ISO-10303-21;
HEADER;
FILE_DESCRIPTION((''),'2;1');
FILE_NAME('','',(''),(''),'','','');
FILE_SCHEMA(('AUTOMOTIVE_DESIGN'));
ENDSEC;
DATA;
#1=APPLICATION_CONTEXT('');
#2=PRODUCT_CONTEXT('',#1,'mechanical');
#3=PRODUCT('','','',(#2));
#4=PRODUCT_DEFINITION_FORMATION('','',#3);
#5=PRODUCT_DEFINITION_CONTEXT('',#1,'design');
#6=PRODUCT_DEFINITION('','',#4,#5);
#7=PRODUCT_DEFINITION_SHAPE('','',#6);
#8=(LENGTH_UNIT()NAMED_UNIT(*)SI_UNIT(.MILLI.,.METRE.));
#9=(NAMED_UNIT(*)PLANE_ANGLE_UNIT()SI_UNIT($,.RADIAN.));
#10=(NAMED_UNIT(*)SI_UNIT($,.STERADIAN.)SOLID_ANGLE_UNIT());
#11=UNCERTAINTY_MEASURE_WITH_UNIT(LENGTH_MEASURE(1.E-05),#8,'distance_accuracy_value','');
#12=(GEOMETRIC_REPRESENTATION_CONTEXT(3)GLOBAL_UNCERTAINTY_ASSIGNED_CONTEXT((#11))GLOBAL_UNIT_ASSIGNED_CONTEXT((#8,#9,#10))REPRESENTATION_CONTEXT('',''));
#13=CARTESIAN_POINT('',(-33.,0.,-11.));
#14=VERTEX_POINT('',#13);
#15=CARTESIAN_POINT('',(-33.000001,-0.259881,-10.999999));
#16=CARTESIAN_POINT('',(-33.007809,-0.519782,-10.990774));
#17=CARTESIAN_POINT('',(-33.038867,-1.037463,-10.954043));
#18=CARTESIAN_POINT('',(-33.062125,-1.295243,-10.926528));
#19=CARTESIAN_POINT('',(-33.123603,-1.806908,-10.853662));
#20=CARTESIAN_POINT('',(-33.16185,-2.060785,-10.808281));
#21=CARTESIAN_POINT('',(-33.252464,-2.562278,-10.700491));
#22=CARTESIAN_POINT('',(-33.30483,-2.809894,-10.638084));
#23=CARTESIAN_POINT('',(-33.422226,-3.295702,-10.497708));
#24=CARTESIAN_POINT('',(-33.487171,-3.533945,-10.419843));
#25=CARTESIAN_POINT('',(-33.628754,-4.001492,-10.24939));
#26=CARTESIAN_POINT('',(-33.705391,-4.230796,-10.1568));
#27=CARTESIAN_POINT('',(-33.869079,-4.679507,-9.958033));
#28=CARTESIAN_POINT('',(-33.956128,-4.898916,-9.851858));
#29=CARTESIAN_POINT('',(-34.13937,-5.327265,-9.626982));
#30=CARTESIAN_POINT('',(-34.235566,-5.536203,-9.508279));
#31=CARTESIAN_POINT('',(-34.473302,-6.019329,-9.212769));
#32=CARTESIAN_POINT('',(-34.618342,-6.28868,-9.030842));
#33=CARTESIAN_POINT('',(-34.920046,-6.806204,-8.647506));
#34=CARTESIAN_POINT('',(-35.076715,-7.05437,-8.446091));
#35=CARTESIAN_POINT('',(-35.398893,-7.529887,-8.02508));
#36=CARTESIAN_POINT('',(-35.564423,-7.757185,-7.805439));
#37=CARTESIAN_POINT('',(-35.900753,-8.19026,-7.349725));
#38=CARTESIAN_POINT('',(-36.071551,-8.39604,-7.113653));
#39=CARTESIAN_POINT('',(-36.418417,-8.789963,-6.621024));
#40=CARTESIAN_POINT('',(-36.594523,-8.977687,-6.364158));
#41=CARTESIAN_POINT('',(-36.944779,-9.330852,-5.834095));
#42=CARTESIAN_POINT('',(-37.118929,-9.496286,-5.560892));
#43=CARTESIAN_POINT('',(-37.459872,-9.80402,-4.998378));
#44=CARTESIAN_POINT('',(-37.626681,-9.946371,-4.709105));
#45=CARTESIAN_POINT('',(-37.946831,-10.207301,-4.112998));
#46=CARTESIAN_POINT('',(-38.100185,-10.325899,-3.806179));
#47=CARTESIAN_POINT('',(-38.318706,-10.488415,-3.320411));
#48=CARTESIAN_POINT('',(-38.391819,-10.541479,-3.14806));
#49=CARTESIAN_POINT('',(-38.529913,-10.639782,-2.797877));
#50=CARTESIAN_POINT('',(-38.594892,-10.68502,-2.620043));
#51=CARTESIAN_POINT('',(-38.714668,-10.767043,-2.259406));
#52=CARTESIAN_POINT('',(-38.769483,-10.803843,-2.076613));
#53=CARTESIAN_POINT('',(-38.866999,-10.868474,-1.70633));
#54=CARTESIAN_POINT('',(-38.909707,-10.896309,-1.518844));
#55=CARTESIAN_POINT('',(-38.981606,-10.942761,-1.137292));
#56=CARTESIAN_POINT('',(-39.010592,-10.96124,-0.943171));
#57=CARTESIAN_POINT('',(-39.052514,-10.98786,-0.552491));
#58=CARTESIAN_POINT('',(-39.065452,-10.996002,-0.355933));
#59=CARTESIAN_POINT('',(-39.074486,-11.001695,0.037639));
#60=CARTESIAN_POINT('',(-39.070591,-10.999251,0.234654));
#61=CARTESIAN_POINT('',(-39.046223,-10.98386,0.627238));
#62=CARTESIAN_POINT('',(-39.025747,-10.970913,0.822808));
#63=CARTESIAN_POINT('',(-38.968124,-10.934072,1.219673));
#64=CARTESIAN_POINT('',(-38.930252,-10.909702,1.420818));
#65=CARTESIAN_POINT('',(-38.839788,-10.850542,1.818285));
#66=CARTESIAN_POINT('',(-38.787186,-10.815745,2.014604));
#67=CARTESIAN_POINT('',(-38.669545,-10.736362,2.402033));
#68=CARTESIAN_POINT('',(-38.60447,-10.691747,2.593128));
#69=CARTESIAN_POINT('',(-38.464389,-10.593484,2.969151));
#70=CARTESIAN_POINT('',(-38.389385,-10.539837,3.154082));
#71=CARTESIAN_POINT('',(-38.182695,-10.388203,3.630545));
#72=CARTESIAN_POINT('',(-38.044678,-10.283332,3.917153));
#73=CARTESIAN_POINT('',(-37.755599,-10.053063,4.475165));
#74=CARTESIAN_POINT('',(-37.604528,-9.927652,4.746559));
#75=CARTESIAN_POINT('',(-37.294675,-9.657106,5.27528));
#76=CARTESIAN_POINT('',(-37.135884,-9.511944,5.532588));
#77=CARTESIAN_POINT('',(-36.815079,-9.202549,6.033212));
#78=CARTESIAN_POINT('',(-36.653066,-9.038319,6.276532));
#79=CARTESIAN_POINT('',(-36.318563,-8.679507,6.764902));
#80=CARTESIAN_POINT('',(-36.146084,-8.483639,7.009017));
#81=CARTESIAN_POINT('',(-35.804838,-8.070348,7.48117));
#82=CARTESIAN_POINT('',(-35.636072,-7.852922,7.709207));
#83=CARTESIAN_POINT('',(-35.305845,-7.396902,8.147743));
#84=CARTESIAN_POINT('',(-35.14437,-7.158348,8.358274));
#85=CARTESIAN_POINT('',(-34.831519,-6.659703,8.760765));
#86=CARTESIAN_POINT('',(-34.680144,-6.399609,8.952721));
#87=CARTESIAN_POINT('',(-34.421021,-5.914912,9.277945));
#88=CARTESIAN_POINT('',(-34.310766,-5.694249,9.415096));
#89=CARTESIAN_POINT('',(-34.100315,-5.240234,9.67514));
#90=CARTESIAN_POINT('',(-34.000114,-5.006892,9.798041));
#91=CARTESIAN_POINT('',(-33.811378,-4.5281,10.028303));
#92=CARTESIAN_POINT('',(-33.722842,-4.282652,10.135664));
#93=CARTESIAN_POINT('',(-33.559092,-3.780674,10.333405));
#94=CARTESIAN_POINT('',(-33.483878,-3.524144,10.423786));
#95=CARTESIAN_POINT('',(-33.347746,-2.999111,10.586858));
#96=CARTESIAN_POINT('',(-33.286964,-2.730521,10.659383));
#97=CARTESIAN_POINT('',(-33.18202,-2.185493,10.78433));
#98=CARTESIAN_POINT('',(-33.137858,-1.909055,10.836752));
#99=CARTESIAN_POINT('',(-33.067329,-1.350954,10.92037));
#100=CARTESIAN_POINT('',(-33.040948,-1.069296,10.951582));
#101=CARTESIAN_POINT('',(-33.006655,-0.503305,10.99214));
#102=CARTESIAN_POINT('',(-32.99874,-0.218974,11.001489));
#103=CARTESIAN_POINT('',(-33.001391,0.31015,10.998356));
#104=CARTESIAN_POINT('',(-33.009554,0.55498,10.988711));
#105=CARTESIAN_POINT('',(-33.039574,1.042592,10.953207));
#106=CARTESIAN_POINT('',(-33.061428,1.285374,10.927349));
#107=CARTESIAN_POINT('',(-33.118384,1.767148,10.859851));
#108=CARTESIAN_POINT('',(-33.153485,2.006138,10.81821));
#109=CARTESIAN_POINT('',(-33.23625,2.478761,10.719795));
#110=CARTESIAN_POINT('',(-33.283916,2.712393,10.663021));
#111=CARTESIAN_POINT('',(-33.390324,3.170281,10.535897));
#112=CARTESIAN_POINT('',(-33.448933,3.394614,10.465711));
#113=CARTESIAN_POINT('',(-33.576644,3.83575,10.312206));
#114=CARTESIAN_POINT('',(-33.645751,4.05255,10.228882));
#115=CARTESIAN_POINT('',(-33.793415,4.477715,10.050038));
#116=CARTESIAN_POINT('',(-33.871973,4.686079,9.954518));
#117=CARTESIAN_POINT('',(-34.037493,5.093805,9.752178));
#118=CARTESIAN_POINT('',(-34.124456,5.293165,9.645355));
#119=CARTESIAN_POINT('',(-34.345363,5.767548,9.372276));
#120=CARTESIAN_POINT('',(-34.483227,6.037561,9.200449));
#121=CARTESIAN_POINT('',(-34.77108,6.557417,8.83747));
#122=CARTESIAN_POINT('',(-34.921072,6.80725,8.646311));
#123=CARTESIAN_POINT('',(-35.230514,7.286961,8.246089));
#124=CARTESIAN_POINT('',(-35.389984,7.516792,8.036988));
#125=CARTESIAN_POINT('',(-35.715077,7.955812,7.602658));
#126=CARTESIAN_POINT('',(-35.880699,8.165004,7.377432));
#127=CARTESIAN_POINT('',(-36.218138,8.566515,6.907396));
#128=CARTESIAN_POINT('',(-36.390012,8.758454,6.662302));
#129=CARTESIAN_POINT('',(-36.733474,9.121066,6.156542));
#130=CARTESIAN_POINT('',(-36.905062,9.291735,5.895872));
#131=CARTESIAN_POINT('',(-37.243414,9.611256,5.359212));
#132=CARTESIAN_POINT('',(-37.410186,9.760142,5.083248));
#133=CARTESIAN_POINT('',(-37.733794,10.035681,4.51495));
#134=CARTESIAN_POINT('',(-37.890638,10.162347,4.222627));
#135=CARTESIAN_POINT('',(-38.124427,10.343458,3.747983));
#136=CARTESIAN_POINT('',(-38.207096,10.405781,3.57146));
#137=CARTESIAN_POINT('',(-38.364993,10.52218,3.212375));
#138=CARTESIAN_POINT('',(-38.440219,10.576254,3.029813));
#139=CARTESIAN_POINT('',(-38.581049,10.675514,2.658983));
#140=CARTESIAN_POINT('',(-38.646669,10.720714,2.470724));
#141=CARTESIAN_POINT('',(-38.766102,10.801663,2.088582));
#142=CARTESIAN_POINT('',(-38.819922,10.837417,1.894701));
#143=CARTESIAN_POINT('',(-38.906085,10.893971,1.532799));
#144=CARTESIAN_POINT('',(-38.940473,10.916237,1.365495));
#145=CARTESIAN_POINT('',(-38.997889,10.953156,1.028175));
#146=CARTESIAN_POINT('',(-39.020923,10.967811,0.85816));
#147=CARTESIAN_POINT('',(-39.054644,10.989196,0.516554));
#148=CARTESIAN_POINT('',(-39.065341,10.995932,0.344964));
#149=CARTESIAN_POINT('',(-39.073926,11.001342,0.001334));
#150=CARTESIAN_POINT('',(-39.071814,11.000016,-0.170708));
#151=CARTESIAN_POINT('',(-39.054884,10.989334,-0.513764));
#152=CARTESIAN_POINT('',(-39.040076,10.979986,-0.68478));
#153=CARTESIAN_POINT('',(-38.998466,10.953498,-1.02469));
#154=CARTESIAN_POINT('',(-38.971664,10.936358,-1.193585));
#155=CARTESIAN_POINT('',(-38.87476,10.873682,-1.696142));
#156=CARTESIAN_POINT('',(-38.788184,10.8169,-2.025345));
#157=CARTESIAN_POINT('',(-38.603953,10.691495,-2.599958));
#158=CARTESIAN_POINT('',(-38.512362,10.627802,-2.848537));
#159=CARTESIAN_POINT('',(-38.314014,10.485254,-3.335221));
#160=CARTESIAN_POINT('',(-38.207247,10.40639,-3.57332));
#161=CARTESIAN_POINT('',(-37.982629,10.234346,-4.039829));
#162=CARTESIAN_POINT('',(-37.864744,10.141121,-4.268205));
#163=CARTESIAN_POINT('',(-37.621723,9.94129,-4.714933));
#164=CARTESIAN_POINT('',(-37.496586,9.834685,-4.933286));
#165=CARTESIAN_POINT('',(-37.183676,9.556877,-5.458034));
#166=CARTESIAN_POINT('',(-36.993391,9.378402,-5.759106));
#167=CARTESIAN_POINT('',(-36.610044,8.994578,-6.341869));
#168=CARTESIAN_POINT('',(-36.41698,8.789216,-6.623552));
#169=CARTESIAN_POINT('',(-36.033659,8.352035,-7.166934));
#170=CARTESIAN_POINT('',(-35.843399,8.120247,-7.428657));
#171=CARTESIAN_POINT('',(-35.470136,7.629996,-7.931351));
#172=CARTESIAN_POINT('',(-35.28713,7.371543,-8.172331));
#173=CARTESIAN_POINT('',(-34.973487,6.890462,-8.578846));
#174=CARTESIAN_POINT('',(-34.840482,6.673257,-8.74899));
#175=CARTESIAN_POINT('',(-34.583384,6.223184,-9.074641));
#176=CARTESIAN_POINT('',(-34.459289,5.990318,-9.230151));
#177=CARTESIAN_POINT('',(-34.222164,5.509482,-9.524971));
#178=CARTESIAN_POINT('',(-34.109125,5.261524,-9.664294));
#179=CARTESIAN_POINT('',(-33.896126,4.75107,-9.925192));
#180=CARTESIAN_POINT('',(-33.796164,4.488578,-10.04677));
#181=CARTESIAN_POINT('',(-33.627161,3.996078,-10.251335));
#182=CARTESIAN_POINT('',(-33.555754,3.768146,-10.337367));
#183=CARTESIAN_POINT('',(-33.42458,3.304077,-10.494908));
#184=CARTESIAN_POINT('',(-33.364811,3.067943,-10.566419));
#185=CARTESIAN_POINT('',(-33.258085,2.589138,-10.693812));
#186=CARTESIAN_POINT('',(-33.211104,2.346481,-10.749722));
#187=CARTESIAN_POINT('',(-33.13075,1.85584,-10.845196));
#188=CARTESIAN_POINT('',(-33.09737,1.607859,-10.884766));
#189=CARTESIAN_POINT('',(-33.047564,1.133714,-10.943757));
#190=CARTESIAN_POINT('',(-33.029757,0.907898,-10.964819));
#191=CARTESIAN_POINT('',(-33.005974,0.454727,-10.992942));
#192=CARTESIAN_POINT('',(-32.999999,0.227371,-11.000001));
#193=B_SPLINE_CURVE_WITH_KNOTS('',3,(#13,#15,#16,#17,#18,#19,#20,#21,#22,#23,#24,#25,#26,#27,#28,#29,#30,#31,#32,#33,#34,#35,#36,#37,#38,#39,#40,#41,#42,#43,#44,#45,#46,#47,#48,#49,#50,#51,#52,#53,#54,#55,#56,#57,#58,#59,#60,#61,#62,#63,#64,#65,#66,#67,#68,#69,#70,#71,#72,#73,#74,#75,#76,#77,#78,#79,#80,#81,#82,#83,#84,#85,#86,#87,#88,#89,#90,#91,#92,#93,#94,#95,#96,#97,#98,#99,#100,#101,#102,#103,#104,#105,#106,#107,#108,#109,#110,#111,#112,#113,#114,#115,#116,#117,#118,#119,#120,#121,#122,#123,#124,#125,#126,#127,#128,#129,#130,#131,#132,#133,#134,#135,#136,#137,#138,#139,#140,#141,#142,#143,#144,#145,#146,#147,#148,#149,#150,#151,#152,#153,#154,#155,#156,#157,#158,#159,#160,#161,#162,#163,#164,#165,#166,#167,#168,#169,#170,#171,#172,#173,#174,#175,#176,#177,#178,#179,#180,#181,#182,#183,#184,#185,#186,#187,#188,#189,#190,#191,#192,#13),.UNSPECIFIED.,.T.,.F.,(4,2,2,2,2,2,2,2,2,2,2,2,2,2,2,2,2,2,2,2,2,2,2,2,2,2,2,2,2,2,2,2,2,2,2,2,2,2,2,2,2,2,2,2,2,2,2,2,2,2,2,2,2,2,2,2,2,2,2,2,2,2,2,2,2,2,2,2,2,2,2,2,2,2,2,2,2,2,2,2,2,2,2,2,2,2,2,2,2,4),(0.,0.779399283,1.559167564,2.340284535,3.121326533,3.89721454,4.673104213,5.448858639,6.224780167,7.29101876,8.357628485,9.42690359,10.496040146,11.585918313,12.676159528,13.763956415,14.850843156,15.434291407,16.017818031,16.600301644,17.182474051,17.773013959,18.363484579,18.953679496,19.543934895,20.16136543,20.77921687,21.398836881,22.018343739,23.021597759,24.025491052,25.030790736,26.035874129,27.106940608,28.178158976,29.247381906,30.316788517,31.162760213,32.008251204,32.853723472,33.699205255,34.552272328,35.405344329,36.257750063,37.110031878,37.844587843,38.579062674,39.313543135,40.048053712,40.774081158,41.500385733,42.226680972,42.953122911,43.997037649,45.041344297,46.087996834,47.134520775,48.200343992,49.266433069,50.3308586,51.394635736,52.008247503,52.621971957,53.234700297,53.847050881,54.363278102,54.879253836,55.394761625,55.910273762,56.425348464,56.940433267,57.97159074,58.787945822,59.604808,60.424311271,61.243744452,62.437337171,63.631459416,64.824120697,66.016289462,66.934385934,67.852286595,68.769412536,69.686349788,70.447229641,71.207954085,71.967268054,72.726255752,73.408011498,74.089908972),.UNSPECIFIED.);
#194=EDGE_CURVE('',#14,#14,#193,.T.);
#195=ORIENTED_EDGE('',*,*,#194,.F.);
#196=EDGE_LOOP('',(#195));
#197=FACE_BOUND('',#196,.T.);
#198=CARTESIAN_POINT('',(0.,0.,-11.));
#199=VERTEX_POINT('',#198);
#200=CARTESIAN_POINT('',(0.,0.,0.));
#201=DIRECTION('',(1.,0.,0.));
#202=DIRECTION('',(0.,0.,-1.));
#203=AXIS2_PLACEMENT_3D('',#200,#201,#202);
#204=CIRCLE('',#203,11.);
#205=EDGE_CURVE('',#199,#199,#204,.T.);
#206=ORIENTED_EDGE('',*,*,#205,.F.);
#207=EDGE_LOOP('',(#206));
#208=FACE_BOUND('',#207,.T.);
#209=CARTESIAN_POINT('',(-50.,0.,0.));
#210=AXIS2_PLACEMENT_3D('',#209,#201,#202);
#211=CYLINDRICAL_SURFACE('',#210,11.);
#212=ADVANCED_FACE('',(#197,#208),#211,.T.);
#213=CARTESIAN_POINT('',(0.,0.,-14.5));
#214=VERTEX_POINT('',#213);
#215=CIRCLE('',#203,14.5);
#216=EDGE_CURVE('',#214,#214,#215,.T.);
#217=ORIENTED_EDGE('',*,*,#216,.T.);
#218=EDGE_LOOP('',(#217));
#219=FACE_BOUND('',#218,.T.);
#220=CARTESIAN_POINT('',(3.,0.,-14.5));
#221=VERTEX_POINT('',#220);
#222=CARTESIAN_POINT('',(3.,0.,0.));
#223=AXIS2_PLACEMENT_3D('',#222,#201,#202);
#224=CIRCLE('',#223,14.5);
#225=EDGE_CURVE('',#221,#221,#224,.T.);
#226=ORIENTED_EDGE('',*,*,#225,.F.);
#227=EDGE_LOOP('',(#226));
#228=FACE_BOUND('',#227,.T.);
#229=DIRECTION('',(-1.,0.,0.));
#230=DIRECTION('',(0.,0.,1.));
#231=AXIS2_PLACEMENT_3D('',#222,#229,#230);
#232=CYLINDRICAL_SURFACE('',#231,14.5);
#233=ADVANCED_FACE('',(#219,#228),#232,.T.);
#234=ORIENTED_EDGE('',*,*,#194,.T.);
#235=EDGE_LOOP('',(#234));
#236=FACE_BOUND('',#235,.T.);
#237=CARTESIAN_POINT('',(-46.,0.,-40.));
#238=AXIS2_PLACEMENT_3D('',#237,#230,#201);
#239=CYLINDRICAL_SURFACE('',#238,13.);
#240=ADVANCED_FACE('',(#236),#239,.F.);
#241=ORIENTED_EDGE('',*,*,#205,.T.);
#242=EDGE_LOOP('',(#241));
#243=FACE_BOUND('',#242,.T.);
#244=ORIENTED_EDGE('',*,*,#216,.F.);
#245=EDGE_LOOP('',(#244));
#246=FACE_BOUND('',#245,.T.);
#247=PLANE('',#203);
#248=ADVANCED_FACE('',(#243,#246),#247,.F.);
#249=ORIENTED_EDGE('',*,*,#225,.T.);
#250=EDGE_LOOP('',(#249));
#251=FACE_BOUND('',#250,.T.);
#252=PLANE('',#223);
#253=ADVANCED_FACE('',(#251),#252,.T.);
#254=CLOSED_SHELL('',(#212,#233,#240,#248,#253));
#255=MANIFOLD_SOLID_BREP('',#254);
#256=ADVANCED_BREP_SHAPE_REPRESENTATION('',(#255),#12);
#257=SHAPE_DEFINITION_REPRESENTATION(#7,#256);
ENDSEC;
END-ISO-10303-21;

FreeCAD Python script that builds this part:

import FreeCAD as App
import Part
import Sketcher

V = App.Vector
Q = App.Units.Quantity

doc = App.newDocument("Part")
body = doc.addObject("PartDesign::Body", "Body")

# Sketch on YZ plane
sketch1 = body.newObject("Sketcher::SketchObject", "Sketch")
sketch1.AttachmentSupport = (doc.getObject("YZ_Plane"), [""])
sketch1.MapMode = "FlatFace"
sketch1.addGeometry(Part.Circle(V(0, 0, 0), V(0, 0, 1), 11), False)
sketch1.addConstraint([
    Sketcher.Constraint("Coincident", 0, 3, -1, 1),
    Sketcher.Constraint("Diameter", 0, Q("22 mm")),
])
pad1 = body.newObject("PartDesign::Pad", "Pad")
pad1.Profile = sketch1
pad1.Length = 50
pad1.Reversed = True

# Sketch on XY plane
sketch2 = body.newObject("Sketcher::SketchObject", "Sketch001")
sketch2.AttachmentSupport = (doc.getObject("XY_Plane"), [""])
sketch2.MapMode = "FlatFace"
sketch2.addGeometry(Part.Circle(V(-46, 0, 0), V(0, 0, 1), 13), False)
sketch2.addConstraint([
    Sketcher.Constraint("PointOnObject", 0, 3, -1),
    Sketcher.Constraint("Diameter", 0, Q("26 mm")),
    Sketcher.Constraint("DistanceX", 0, 3, -1, 1, Q("46 mm")),
])
pocket1 = body.newObject("PartDesign::Pocket", "Pocket")
pocket1.Profile = sketch2
pocket1.Length = 80
pocket1.Midplane = True

# Sketch on YZ plane
sketch3 = body.newObject("Sketcher::SketchObject", "Sketch002")
sketch3.AttachmentSupport = (doc.getObject("YZ_Plane"), [""])
sketch3.MapMode = "FlatFace"
sketch3.addGeometry(Part.Circle(V(0, 0, 0), V(0, 0, 1), 14), False)
sketch3.addConstraint([
    Sketcher.Constraint("Coincident", 0, 3, -1, 1),
    Sketcher.Constraint("Diameter", 0, Q("29 mm")),
])
pad2 = body.newObject("PartDesign::Pad", "Pad001")
pad2.Profile = sketch3
pad2.Length = 3

doc.recompute()
